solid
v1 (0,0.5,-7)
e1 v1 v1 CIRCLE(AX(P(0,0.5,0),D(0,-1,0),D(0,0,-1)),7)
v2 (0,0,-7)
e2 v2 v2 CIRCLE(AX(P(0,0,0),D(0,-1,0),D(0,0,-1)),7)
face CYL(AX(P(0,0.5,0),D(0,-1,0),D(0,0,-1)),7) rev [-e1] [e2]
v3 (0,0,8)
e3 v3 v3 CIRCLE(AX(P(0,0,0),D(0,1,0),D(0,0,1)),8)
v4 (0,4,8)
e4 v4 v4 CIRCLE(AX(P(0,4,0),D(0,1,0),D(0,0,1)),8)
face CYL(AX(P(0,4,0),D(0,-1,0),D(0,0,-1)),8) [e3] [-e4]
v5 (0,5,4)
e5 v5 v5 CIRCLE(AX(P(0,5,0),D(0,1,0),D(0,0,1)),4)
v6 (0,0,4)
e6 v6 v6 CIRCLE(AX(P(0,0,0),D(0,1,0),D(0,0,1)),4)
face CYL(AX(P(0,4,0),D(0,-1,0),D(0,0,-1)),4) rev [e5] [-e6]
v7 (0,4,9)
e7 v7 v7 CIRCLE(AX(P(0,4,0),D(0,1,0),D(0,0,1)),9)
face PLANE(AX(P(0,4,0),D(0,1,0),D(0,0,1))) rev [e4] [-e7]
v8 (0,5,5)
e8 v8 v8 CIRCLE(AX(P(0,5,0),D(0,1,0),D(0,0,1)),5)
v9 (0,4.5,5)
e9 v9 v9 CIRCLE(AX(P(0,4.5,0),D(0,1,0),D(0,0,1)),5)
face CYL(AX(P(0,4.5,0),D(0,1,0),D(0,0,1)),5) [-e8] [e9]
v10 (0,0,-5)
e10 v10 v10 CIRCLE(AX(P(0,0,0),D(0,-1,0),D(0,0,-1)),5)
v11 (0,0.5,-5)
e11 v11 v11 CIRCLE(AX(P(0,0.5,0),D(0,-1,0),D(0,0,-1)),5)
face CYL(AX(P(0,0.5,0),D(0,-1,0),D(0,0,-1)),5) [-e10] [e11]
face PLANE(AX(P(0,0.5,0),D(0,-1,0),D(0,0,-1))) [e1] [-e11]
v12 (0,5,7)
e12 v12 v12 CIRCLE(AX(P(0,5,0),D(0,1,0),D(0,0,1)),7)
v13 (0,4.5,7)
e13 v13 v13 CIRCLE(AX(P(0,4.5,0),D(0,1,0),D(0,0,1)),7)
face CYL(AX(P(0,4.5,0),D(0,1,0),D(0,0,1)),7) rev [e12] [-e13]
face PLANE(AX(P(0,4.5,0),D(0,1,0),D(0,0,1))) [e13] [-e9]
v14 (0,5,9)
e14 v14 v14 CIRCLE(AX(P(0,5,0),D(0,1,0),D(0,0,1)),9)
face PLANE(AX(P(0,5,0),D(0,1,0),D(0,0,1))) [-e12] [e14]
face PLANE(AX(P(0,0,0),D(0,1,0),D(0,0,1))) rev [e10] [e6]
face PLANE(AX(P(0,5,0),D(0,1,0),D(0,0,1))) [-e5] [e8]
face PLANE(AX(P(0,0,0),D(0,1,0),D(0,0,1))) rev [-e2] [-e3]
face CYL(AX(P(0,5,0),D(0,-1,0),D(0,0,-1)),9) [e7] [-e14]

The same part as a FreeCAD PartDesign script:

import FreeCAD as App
import Part
import Sketcher

V = App.Vector
Q = App.Units.Quantity

doc = App.newDocument("Part")
body = doc.addObject("PartDesign::Body", "Body")

# Sketch on XZ plane
sketch1 = body.newObject("Sketcher::SketchObject", "Sketch")
sketch1.AttachmentSupport = (doc.getObject("XZ_Plane"), [""])
sketch1.MapMode = "FlatFace"
sketch1.addGeometry([
    Part.Circle(V(0, 0, 0), V(0, 0, 1), 8),
    Part.Circle(V(0, 0, 0), V(0, 0, 1), 4),
], False)
sketch1.addConstraint([
    Sketcher.Constraint("Coincident", 0, 3, -1, 1),
    Sketcher.Constraint("Coincident", 1, 3, -1, 1),
    Sketcher.Constraint("Diameter", 0, Q("16 mm")),
    Sketcher.Constraint("Diameter", 1, Q("8 mm")),
])
pad1 = body.newObject("PartDesign::Pad", "Pad")
pad1.Profile = sketch1
pad1.Length = 4
pad1.Reversed = True

# Sketch on XZ plane
sketch2 = body.newObject("Sketcher::SketchObject", "Sketch001")
sketch2.AttachmentSupport = (doc.getObject("XZ_Plane"), [""])
sketch2.MapMode = "FlatFace"
sketch2.AttachmentOffset = App.Placement(V(0, 0, -4), App.Rotation())
sketch2.addGeometry([
    Part.Circle(V(0, 0, 0), V(0, 0, 1), 9),
    Part.Circle(V(0, 0, 0), V(0, 0, 1), 4),
], False)
sketch2.addConstraint([
    Sketcher.Constraint("Coincident", 0, 3, -1, 1),
    Sketcher.Constraint("Coincident", 1, 3, -1, 1),
    Sketcher.Constraint("Diameter", 0, Q("18 mm")),
    Sketcher.Constraint("Diameter", 1, Q("8 mm")),
])
pad2 = body.newObject("PartDesign::Pad", "Pad001")
pad2.Profile = sketch2
pad2.Length = 1
pad2.Reversed = True

# Sketch on XZ plane
sketch3 = body.newObject("Sketcher::SketchObject", "Sketch002")
sketch3.AttachmentSupport = (doc.getObject("XZ_Plane"), [""])
sketch3.MapMode = "FlatFace"
sketch3.addGeometry([
    Part.Circle(V(0, 0, 0), V(0, 0, 1), 7),
    Part.Circle(V(0, 0, 0), V(0, 0, 1), 5),
], False)
sketch3.addConstraint([
    Sketcher.Constraint("Coincident", 0, 3, -1, 1),
    Sketcher.Constraint("Coincident", 1, 3, -1, 1),
    Sketcher.Constraint("Diameter", 0, Q("14 mm")),
    Sketcher.Constraint("Diameter", 1, Q("10 mm")),
])
pocket1 = body.newObject("PartDesign::Pocket", "Pocket")
pocket1.Profile = sketch3
pocket1.Length = 0.5

# Sketch on XZ plane
sketch4 = body.newObject("Sketcher::SketchObject", "Sketch003")
sketch4.AttachmentSupport = (doc.getObject("XZ_Plane"), [""])
sketch4.MapMode = "FlatFace"
sketch4.AttachmentOffset = App.Placement(V(0, 0, -4.5), App.Rotation())
sketch4.addGeometry([
    Part.Circle(V(0, 0, 0), V(0, 0, 1), 7),
    Part.Circle(V(0, 0, 0), V(0, 0, 1), 5),
], False)
sketch4.addConstraint([
    Sketcher.Constraint("Coincident", 0, 3, -1, 1),
    Sketcher.Constraint("Coincident", 1, 3, -1, 1),
    Sketcher.Constraint("Diameter", 0, Q("14 mm")),
    Sketcher.Constraint("Diameter", 1, Q("10 mm")),
])
pocket2 = body.newObject("PartDesign::Pocket", "Pocket001")
pocket2.Profile = sketch4
pocket2.Length = 0.5

doc.recompute()
